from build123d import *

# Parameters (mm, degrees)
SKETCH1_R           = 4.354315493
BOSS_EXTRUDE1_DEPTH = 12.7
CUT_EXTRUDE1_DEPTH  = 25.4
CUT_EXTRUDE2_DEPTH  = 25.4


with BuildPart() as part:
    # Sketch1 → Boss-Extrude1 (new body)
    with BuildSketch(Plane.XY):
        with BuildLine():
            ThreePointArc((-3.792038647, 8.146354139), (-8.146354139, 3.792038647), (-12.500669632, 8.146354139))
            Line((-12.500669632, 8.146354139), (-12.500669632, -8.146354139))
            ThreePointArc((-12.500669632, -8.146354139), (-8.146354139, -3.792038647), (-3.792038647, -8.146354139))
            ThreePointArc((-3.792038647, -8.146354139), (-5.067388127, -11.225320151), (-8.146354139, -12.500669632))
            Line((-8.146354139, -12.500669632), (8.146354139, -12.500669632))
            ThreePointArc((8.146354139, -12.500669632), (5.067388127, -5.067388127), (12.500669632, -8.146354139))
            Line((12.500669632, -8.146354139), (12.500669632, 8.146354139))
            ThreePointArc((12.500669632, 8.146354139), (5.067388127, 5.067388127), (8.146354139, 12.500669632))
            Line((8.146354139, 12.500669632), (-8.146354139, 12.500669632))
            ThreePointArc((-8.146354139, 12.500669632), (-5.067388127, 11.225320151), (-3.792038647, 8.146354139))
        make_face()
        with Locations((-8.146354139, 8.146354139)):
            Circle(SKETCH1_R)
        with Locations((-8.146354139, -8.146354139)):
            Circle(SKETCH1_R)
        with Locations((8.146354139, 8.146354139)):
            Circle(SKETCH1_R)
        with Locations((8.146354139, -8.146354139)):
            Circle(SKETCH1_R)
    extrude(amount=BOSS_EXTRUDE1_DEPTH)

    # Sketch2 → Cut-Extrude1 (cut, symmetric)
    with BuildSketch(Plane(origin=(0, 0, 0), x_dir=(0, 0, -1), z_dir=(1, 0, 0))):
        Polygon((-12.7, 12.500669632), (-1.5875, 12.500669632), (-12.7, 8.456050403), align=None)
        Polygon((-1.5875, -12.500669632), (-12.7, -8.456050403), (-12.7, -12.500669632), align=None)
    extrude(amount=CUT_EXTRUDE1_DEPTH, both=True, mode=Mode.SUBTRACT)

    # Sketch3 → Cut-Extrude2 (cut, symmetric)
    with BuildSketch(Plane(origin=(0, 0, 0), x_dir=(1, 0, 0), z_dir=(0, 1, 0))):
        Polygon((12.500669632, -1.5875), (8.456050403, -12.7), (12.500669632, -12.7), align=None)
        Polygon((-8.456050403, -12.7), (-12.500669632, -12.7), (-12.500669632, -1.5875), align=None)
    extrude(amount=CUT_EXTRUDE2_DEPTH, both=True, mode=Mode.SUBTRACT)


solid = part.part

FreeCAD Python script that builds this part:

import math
import FreeCAD as App
import Part
import Sketcher
from FreeCAD import Vector
Q = App.Units.Quantity


def add_polygon(sketch, points):
    """Adds a closed chain of lines whose ends are joined by coincident constraints."""
    first, n = sketch.GeometryCount, len(points)
    for a, b in zip(points, points[1:] + points[:1]):
        sketch.addGeometry(Part.LineSegment(App.Vector(*a, 0), App.Vector(*b, 0)), False)
    for i in range(n):
        sketch.addConstraint(Sketcher.Constraint("Coincident", first + i, 2, first + (i + 1) % n, 1))

doc = App.newDocument("Part")
params = doc.addObject("Spreadsheet::Sheet", "Params")
for row, (alias, value) in enumerate([
    ("pad1_length", "0.5 in"),
    ("sketch2_height", "0.4375 in"),
    ("pocket1_length", "2 in"),
    ("sketch3_height", "0.4375 in"),
    ("pocket2_length", "2 in"),
], start=1):
    params.set(f"A{row}", alias)
    params.set(f"B{row}", "=" + value)
    params.setAlias(f"B{row}", alias)

body = doc.addObject("PartDesign::Body", "Body")

sketch1 = body.newObject("Sketcher::SketchObject", "Sketch")
sketch1.AttachmentSupport = (doc.getObject("XY_Plane"), [""])
sketch1.MapMode = "FlatFace"
sketch1.addGeometry([
    Part.LineSegment(Vector(-12.5, 8.1, 0), Vector(-12.5, -8.1, 0)),
    Part.ArcOfCircle(Part.Circle(Vector(-8.1, -8.1, 0), Vector(0, 0, 1), 4.4), math.radians(180), math.radians(270)),
    Part.LineSegment(Vector(-8.1, -12.5, 0), Vector(8.1, -12.5, 0)),
    Part.ArcOfCircle(Part.Circle(Vector(8.1, -8.1, 0), Vector(0, 0, 1), 4.4), math.radians(-90), math.radians(0)),
    Part.LineSegment(Vector(12.5, -8.1, 0), Vector(12.5, 8.1, 0)),
    Part.ArcOfCircle(Part.Circle(Vector(8.1, 8.1, 0), Vector(0, 0, 1), 4.4), math.radians(0), math.radians(90)),
    Part.LineSegment(Vector(8.1, 12.5, 0), Vector(-8.1, 12.5, 0)),
    Part.ArcOfCircle(Part.Circle(Vector(-8.1, 8.1, 0), Vector(0, 0, 1), 4.4), math.radians(90), math.radians(180)),
], False)
sketch1.addConstraint([
    Sketcher.Constraint("Tangent", 0, 2, 1, 1),
    Sketcher.Constraint("Tangent", 1, 2, 2, 1),
    Sketcher.Constraint("Tangent", 2, 2, 3, 1),
    Sketcher.Constraint("Tangent", 3, 2, 4, 1),
    Sketcher.Constraint("Tangent", 4, 2, 5, 1),
    Sketcher.Constraint("Tangent", 5, 2, 6, 1),
    Sketcher.Constraint("Tangent", 6, 2, 7, 1),
    Sketcher.Constraint("Tangent", 7, 2, 0, 1),
    Sketcher.Constraint("Vertical", 0),
    Sketcher.Constraint("Horizontal", 2),
    Sketcher.Constraint("Vertical", 4),
    Sketcher.Constraint("Horizontal", 6),
    Sketcher.Constraint("Equal", 1, 3),
    Sketcher.Constraint("Equal", 3, 5),
    Sketcher.Constraint("Equal", 5, 7),
    Sketcher.Constraint("Symmetric", 1, 3, 5, 3, -1, 1),
    Sketcher.Constraint("Equal", 6, 0),
    Sketcher.Constraint("Radius", 1, Q("4.354315 mm")),
    Sketcher.Constraint("DistanceX", 2, 1, 2, 2, Q("16.292708 mm")),
])
pad1 = body.newObject("PartDesign::Pad", "Pad")
pad1.Profile = sketch1
pad1.setExpression("Length", "Params.pad1_length")

sketch2 = body.newObject("Sketcher::SketchObject", "Sketch001")
sketch2.AttachmentSupport = (doc.getObject("YZ_Plane"), [""])
sketch2.MapMode = "FlatFace"
add_polygon(sketch2, [(12.5, 1.6), (12.5, 12.7), (8.5, 12.7)])
add_polygon(sketch2, [(-12.5, 1.6), (-8.5, 12.7), (-12.5, 12.7)])
sketch2.addConstraint([
    Sketcher.Constraint("Vertical", 0),
    Sketcher.Constraint("Horizontal", 1),
    Sketcher.Constraint("Horizontal", 4),
    Sketcher.Constraint("Vertical", 5),
    Sketcher.Constraint("Symmetric", 1, 2, 3, 2, -2),
    Sketcher.Constraint("Symmetric", 2, 2, 5, 2, -2),
    Sketcher.Constraint("Angle", 2, Q("-70 deg")),
    Sketcher.Constraint("DistanceY", -1, 1, 0, 2, Q("0.5 in")),
    Sketcher.Constraint("DistanceY", 0, 1, 0, 2, Q("0.4375 in")),
    Sketcher.Constraint("DistanceX", 3, 2, 1, 2, Q("16.912101 mm")),
])
sketch2.setExpression("Constraints[14]", "Params.sketch2_height")
pocket1 = body.newObject("PartDesign::Pocket", "Pocket")
pocket1.Profile = sketch2
pocket1.setExpression("Length", "Params.pocket1_length")
pocket1.Midplane = True

sketch3 = body.newObject("Sketcher::SketchObject", "Sketch002")
sketch3.AttachmentSupport = (doc.getObject("XZ_Plane"), [""])
sketch3.MapMode = "FlatFace"
add_polygon(sketch3, [(12.5, 1.6), (8.5, 12.7), (12.5, 12.7)])
add_polygon(sketch3, [(-12.5, 12.7), (-8.5, 12.7), (-12.5, 1.6)])
sketch3.addConstraint([
    Sketcher.Constraint("Horizontal", 1),
    Sketcher.Constraint("Vertical", 2),
    Sketcher.Constraint("Horizontal", 3),
    Sketcher.Constraint("Vertical", 5),
    Sketcher.Constraint("Symmetric", 0, 2, 3, 2, -2),
    Sketcher.Constraint("Symmetric", 2, 2, 4, 2, -2),
    Sketcher.Constraint("Angle", 0, Q("110 deg")),
    Sketcher.Constraint("DistanceY", -1, 1, 0, 2, Q("0.5 in")),
    Sketcher.Constraint("DistanceY", 2, 2, 2, 1, Q("0.4375 in")),
    Sketcher.Constraint("DistanceX", 3, 2, 0, 2, Q("16.912101 mm")),
])
sketch3.setExpression("Constraints[14]", "Params.sketch3_height")
pocket2 = body.newObject("PartDesign::Pocket", "Pocket001")
pocket2.Profile = sketch3
pocket2.setExpression("Length", "Params.pocket2_length")
pocket2.Midplane = True

doc.recompute()
